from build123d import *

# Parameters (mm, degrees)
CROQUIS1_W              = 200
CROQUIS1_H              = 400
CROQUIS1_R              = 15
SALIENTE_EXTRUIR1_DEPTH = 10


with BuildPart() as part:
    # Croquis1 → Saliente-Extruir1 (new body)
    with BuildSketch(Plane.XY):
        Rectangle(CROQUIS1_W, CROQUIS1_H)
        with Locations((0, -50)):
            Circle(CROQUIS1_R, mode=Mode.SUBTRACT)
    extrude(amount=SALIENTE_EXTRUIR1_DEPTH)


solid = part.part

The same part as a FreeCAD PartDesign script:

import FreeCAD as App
import Part
import Sketcher
from FreeCAD import Vector
Q = App.Units.Quantity

doc = App.newDocument("Part")
body = doc.addObject("PartDesign::Body", "Body")

sketch1 = body.newObject("Sketcher::SketchObject", "Sketch")
sketch1.AttachmentSupport = (doc.getObject("XY_Plane"), [""])
sketch1.MapMode = "FlatFace"
sketch1.addGeometry([
    Part.LineSegment(Vector(-100, 200, 0), Vector(-100, -200, 0)),
    Part.LineSegment(Vector(-100, -200, 0), Vector(100, -200, 0)),
    Part.LineSegment(Vector(100, -200, 0), Vector(100, 200, 0)),
    Part.LineSegment(Vector(100, 200, 0), Vector(-100, 200, 0)),
    Part.Circle(Vector(0, -50, 0), Vector(0, 0, 1), 15),
], False)
sketch1.addConstraint([
    Sketcher.Constraint("Coincident", 0, 2, 1, 1),
    Sketcher.Constraint("Coincident", 1, 2, 2, 1),
    Sketcher.Constraint("Coincident", 2, 2, 3, 1),
    Sketcher.Constraint("Coincident", 3, 2, 0, 1),
    Sketcher.Constraint("Vertical", 0),
    Sketcher.Constraint("Horizontal", 1),
    Sketcher.Constraint("Vertical", 2),
    Sketcher.Constraint("Horizontal", 3),
    Sketcher.Constraint("Symmetric", 0, 2, 2, 2, -1, 1),
    Sketcher.Constraint("PointOnObject", 4, 3, -2),
    Sketcher.Constraint("Diameter", 4, Q("30 mm")),
    Sketcher.Constraint("DistanceX", 1, 1, 1, 2, Q("200 mm")),
    Sketcher.Constraint("DistanceY", 0, 2, 0, 1, Q("400 mm")),
    Sketcher.Constraint("DistanceY", 4, 3, -1, 1, Q("50 mm")),
])
pad1 = body.newObject("PartDesign::Pad", "Pad")
pad1.Profile = sketch1
pad1.Length = 10

doc.recompute()
